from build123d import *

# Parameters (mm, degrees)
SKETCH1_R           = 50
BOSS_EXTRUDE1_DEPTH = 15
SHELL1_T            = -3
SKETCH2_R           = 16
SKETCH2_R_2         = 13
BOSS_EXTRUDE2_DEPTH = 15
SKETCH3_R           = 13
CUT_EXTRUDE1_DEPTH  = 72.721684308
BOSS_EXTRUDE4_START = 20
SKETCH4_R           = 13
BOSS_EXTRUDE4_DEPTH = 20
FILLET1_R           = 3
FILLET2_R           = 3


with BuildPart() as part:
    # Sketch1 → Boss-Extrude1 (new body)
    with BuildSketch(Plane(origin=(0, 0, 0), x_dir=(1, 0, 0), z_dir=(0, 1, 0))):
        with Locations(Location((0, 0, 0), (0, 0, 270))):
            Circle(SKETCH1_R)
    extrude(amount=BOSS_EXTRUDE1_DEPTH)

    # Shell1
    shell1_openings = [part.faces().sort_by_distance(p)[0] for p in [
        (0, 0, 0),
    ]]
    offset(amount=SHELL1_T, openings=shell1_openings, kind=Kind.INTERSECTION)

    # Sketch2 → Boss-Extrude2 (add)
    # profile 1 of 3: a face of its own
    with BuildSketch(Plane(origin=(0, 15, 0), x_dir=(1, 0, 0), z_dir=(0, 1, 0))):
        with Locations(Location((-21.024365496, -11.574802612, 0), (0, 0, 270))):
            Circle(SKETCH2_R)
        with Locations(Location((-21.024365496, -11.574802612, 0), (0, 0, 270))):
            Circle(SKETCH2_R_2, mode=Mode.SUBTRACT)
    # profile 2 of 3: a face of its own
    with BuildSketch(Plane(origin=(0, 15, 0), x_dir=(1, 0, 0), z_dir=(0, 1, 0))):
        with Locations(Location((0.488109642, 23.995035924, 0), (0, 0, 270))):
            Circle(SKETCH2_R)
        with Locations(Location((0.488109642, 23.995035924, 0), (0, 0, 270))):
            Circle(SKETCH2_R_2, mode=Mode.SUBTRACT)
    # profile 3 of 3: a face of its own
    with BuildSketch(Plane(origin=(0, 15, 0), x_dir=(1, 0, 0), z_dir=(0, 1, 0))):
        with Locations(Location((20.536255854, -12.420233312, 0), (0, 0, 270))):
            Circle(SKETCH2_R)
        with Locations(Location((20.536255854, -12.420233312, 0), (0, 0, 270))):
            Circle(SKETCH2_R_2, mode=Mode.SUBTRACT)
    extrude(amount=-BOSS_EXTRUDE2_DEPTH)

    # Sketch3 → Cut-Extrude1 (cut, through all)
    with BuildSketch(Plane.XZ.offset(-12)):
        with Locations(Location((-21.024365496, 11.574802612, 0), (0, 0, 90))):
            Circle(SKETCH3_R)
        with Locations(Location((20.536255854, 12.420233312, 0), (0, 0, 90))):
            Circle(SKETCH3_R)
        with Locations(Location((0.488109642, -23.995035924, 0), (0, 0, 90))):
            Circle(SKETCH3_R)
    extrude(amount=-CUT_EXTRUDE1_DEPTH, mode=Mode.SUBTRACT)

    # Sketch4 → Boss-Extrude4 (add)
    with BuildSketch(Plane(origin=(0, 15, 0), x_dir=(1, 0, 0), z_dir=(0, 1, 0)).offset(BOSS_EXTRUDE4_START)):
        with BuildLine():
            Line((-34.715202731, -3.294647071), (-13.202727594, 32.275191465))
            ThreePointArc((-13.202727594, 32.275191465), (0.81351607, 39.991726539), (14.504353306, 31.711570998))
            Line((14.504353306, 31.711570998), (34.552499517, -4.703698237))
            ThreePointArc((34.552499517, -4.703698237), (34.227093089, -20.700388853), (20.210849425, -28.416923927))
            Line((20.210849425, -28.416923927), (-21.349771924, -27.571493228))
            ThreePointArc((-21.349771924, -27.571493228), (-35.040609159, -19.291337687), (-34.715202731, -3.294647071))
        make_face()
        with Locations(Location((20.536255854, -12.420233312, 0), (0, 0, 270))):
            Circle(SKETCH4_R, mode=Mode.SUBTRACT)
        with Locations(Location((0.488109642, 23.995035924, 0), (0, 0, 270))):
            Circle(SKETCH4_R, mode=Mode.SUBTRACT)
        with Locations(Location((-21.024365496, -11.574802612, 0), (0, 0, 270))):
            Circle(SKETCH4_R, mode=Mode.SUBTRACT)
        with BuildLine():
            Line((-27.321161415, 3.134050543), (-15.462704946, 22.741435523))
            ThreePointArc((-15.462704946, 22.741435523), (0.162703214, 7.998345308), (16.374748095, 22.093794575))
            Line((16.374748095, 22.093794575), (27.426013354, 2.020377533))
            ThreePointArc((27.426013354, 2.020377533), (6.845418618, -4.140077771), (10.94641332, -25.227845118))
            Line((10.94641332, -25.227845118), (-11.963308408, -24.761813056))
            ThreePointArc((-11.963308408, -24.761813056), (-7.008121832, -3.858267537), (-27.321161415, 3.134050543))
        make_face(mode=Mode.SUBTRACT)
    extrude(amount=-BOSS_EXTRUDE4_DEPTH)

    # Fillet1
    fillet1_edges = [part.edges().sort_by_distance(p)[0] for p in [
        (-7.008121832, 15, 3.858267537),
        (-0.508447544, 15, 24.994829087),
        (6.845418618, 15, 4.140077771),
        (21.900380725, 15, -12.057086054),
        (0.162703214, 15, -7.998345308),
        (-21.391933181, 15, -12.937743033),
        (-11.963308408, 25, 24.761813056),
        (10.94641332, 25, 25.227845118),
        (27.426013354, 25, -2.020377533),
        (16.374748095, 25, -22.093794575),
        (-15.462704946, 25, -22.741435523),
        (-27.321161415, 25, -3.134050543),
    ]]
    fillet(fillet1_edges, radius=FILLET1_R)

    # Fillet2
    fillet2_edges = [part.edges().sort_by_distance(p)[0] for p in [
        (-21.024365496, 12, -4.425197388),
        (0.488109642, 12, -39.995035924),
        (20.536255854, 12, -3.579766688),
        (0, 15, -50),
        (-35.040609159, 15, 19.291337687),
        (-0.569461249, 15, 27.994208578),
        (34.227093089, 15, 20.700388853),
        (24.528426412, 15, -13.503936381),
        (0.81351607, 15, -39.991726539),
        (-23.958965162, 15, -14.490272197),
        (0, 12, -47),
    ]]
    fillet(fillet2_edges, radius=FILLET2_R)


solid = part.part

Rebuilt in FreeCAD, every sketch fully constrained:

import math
import FreeCAD as App
import Part
import Sketcher
from FreeCAD import Vector
Q = App.Units.Quantity


def edges_at(feature, points):
    """Names of the edges that pass closest to the given points."""
    edges = feature.Shape.Edges
    near = lambda p: min(range(len(edges)), key=lambda i: edges[i].distToShape(Part.Vertex(*p))[0])
    return sorted({f"Edge{near(p) + 1}" for p in points})


def faces_at(feature, points):
    """Names of the faces that lie closest to the given points."""
    faces = feature.Shape.Faces
    near = lambda p: min(range(len(faces)), key=lambda i: faces[i].distToShape(Part.Vertex(*p))[0])
    return sorted({f"Face{near(p) + 1}" for p in points})

doc = App.newDocument("Part")
params = doc.addObject("Spreadsheet::Sheet", "Params")
for row, (alias, value) in enumerate([
    ("sketch1_diameter", "100 mm"),
    ("pad1_length", "15 mm"),
    ("thickness_wall", "3 mm"),
    ("sketch2_diameter", "32 mm"),
    ("sketch2_diameter2", "26 mm"),
    ("pad2_length", "15 mm"),
    ("sketch3_diameter", "26 mm"),
    ("sketch4_diameter", "26 mm"),
    ("sketch4_radius", "16 mm"),
    ("pad3_length", "20 mm"),
    ("fillet_radius", "3 mm"),
    ("fillet2_radius", "3 mm"),
], start=1):
    params.set(f"A{row}", alias)
    params.set(f"B{row}", "=" + value)
    params.setAlias(f"B{row}", alias)

body = doc.addObject("PartDesign::Body", "Body")

# Sketch on XZ plane
sketch1 = body.newObject("Sketcher::SketchObject", "Sketch")
sketch1.AttachmentSupport = (doc.getObject("XZ_Plane"), [""])
sketch1.MapMode = "FlatFace"
sketch1.addGeometry(Part.Circle(Vector(0, 0, 0), Vector(0, 0, 1), 50), False)
sketch1.addConstraint(Sketcher.Constraint("Coincident", 0, 3, -1, 1))
sketch1.addConstraint(Sketcher.Constraint("Diameter", 0, Q("100 mm")))
sketch1.setExpression("Constraints[1]", "Params.sketch1_diameter")
pad1 = body.newObject("PartDesign::Pad", "Pad")
pad1.Profile = sketch1
pad1.setExpression("Length", "Params.pad1_length")
pad1.Reversed = True
doc.recompute()

thickness = body.newObject("PartDesign::Thickness", "Thickness")
thickness.Base = (pad1, faces_at(pad1, [(0, 0, 0)]))
thickness.setExpression("Value", "Params.thickness_wall")
thickness.Reversed = True
thickness.Join = "Intersection"

# Sketch on XZ plane
sketch2 = body.newObject("Sketcher::SketchObject", "Sketch001")
sketch2.AttachmentSupport = (doc.getObject("XZ_Plane"), [""])
sketch2.MapMode = "FlatFace"
sketch2.AttachmentOffset = App.Placement(Vector(0, 0, -15), App.Rotation())
sketch2.addGeometry(Part.Circle(Vector(-21.024365, 11.574803, 0), Vector(0, 0, 1), 16), False)
sketch2.addGeometry(Part.Circle(Vector(-21.024365, 11.574803, 0), Vector(0, 0, 1), 13), False)
sketch2.addGeometry(Part.Circle(Vector(0.48811, -23.995036, 0), Vector(0, 0, 1), 16), False)
sketch2.addGeometry(Part.Circle(Vector(0.48811, -23.995036, 0), Vector(0, 0, 1), 13), False)
sketch2.addGeometry(Part.Circle(Vector(20.536256, 12.420233, 0), Vector(0, 0, 1), 16), False)
sketch2.addGeometry(Part.Circle(Vector(20.536256, 12.420233, 0), Vector(0, 0, 1), 13), False)
sketch2.addConstraint(Sketcher.Constraint("Coincident", 1, 3, 0, 3))
sketch2.addConstraint(Sketcher.Constraint("Coincident", 3, 3, 2, 3))
sketch2.addConstraint(Sketcher.Constraint("Coincident", 5, 3, 4, 3))
sketch2.addConstraint(Sketcher.Constraint("Equal", 0, 2))
sketch2.addConstraint(Sketcher.Constraint("Equal", 1, 3))
sketch2.addConstraint(Sketcher.Constraint("Equal", 2, 4))
sketch2.addConstraint(Sketcher.Constraint("Equal", 3, 5))
sketch2.addConstraint(Sketcher.Constraint("Diameter", 0, Q("32 mm")))
sketch2.addConstraint(Sketcher.Constraint("Diameter", 1, Q("26 mm")))
sketch2.addConstraint(Sketcher.Constraint("DistanceX", -1, 1, 2, 3, Q("0.48811 mm")))
sketch2.addConstraint(Sketcher.Constraint("DistanceY", 2, 3, 0, 3, Q("35.569839 mm")))
sketch2.addConstraint(Sketcher.Constraint("DistanceX", 0, 3, 4, 3, Q("41.560621 mm")))
sketch2.addConstraint(Sketcher.Constraint("DistanceY", 0, 3, 4, 3, Q("0.845431 mm")))
sketch2.addConstraint(Sketcher.Constraint("DistanceX", 0, 3, -1, 1, Q("21.024365 mm")))
sketch2.addConstraint(Sketcher.Constraint("DistanceY", -1, 1, 0, 3, Q("11.574803 mm")))
sketch2.setExpression("Constraints[7]", "Params.sketch2_diameter")
sketch2.setExpression("Constraints[8]", "Params.sketch2_diameter2")
pad2 = body.newObject("PartDesign::Pad", "Pad001")
pad2.Profile = sketch2
pad2.setExpression("Length", "Params.pad2_length")

# Sketch on XZ plane
sketch3 = body.newObject("Sketcher::SketchObject", "Sketch002")
sketch3.AttachmentSupport = (doc.getObject("XZ_Plane"), [""])
sketch3.MapMode = "FlatFace"
sketch3.AttachmentOffset = App.Placement(Vector(0, 0, -12), App.Rotation())
sketch3.addGeometry(Part.Circle(Vector(-21.024365, 11.574803, 0), Vector(0, 0, 1), 13), False)
sketch3.addGeometry(Part.Circle(Vector(20.536256, 12.420233, 0), Vector(0, 0, 1), 13), False)
sketch3.addGeometry(Part.Circle(Vector(0.48811, -23.995036, 0), Vector(0, 0, 1), 13), False)
sketch3.addConstraint(Sketcher.Constraint("Equal", 0, 1))
sketch3.addConstraint(Sketcher.Constraint("Equal", 1, 2))
sketch3.addConstraint(Sketcher.Constraint("Diameter", 0, Q("26 mm")))
sketch3.addConstraint(Sketcher.Constraint("DistanceX", -1, 1, 2, 3, Q("0.48811 mm")))
sketch3.addConstraint(Sketcher.Constraint("DistanceX", 0, 3, 1, 3, Q("41.560621 mm")))
sketch3.addConstraint(Sketcher.Constraint("DistanceY", 0, 3, 1, 3, Q("0.845431 mm")))
sketch3.addConstraint(Sketcher.Constraint("DistanceY", 2, 3, 0, 3, Q("35.569839 mm")))
sketch3.addConstraint(Sketcher.Constraint("DistanceX", 0, 3, -1, 1, Q("21.024365 mm")))
sketch3.addConstraint(Sketcher.Constraint("DistanceY", -1, 1, 0, 3, Q("11.574803 mm")))
sketch3.setExpression("Constraints[2]", "Params.sketch3_diameter")
pocket1 = body.newObject("PartDesign::Pocket", "Pocket")
pocket1.Profile = sketch3
pocket1.Type = "ThroughAll"

# Sketch on XZ plane
sketch4 = body.newObject("Sketcher::SketchObject", "Sketch003")
sketch4.AttachmentSupport = (doc.getObject("XZ_Plane"), [""])
sketch4.MapMode = "FlatFace"
sketch4.AttachmentOffset = App.Placement(Vector(0, 0, -35), App.Rotation())
sketch4.addGeometry(Part.LineSegment(Vector(-13.202728, -32.275191, 0), Vector(-34.715203, 3.294647, 0)), False)
sketch4.addGeometry(Part.ArcOfCircle(Part.Circle(Vector(-21.024365, 11.574803, 0), Vector(0, 0, 1), 16), math.radians(91.165356), math.radians(211.165356)), False)
sketch4.addGeometry(Part.LineSegment(Vector(-21.349772, 27.571493, 0), Vector(20.210849, 28.416924, 0)), False)
sketch4.addGeometry(Part.ArcOfCircle(Part.Circle(Vector(20.536256, 12.420233, 0), Vector(0, 0, 1), 16), math.radians(-28.834644), math.radians(91.165356)), False)
sketch4.addGeometry(Part.LineSegment(Vector(34.5525, 4.703698, 0), Vector(14.504353, -31.711571, 0)), False)
sketch4.addGeometry(Part.ArcOfCircle(Part.Circle(Vector(0.48811, -23.995036, 0), Vector(0, 0, 1), 16), math.radians(-148.834644), math.radians(-28.834644)), False)
sketch4.addGeometry(Part.Circle(Vector(20.536256, 12.420233, 0), Vector(0, 0, 1), 13), False)
sketch4.addGeometry(Part.LineSegment(Vector(-27.321161, -3.134051, 0), Vector(-15.462705, -22.741436, 0)), False)
sketch4.addGeometry(Part.ArcOfCircle(Part.Circle(Vector(0.48811, -23.995036, 0), Vector(0, 0, 1), 16), math.radians(6.824444), math.radians(175.506269)), False)
sketch4.addGeometry(Part.LineSegment(Vector(16.374748, -22.093795, 0), Vector(27.426013, -2.020378, 0)), False)
sketch4.addGeometry(Part.ArcOfCircle(Part.Circle(Vector(20.536256, 12.420233, 0), Vector(0, 0, 1), 16), math.radians(126.824444), math.radians(295.506269)), False)
sketch4.addGeometry(Part.LineSegment(Vector(10.946413, 25.227845, 0), Vector(-11.963308, 24.761813, 0)), False)
sketch4.addGeometry(Part.ArcOfCircle(Part.Circle(Vector(-21.024365, 11.574803, 0), Vector(0, 0, 1), 16), math.radians(-113.175556), math.radians(55.506269)), False)
sketch4.addGeometry(Part.Circle(Vector(-21.024365, 11.574803, 0), Vector(0, 0, 1), 13), False)
sketch4.addGeometry(Part.Circle(Vector(0.48811, -23.995036, 0), Vector(0, 0, 1), 13), False)
sketch4.addConstraint(Sketcher.Constraint("Tangent", 0, 2, 1, 2))
sketch4.addConstraint(Sketcher.Constraint("Tangent", 1, 1, 2, 1))
sketch4.addConstraint(Sketcher.Constraint("Tangent", 2, 2, 3, 2))
sketch4.addConstraint(Sketcher.Constraint("Tangent", 3, 1, 4, 1))
sketch4.addConstraint(Sketcher.Constraint("Tangent", 4, 2, 5, 2))
sketch4.addConstraint(Sketcher.Constraint("Tangent", 5, 1, 0, 1))
sketch4.addConstraint(Sketcher.Constraint("Coincident", 7, 2, 8, 2))
sketch4.addConstraint(Sketcher.Constraint("Coincident", 8, 1, 9, 1))
sketch4.addConstraint(Sketcher.Constraint("Coincident", 9, 2, 10, 2))
sketch4.addConstraint(Sketcher.Constraint("Coincident", 10, 1, 11, 1))
sketch4.addConstraint(Sketcher.Constraint("Coincident", 11, 2, 12, 2))
sketch4.addConstraint(Sketcher.Constraint("Coincident", 12, 1, 7, 1))
sketch4.addConstraint(Sketcher.Constraint("Coincident", 6, 3, 3, 3))
sketch4.addConstraint(Sketcher.Constraint("Coincident", 8, 3, 5, 3))
sketch4.addConstraint(Sketcher.Constraint("Coincident", 10, 3, 3, 3))
sketch4.addConstraint(Sketcher.Constraint("Coincident", 12, 3, 1, 3))
sketch4.addConstraint(Sketcher.Constraint("Coincident", 13, 3, 1, 3))
sketch4.addConstraint(Sketcher.Constraint("Coincident", 14, 3, 5, 3))
sketch4.addConstraint(Sketcher.Constraint("Equal", 1, 3))
sketch4.addConstraint(Sketcher.Constraint("Equal", 3, 5))
sketch4.addConstraint(Sketcher.Constraint("Equal", 5, 8))
sketch4.addConstraint(Sketcher.Constraint("Equal", 8, 10))
sketch4.addConstraint(Sketcher.Constraint("Equal", 10, 12))
sketch4.addConstraint(Sketcher.Constraint("Equal", 6, 13))
sketch4.addConstraint(Sketcher.Constraint("Equal", 13, 14))
sketch4.addConstraint(Sketcher.Constraint("Parallel", 0, 7))
sketch4.addConstraint(Sketcher.Constraint("Parallel", 4, 9))
sketch4.addConstraint(Sketcher.Constraint("Parallel", 2, 11))
sketch4.addConstraint(Sketcher.Constraint("Equal", 0, 2))
sketch4.addConstraint(Sketcher.Constraint("Equal", 2, 4))
sketch4.addConstraint(Sketcher.Constraint("Equal", 7, 9))
sketch4.addConstraint(Sketcher.Constraint("Equal", 9, 11))
sketch4.addConstraint(Sketcher.Constraint("Diameter", 6, Q("26 mm")))
sketch4.addConstraint(Sketcher.Constraint("Radius", 1, Q("16 mm")))
sketch4.addConstraint(Sketcher.Constraint("DistanceX", -1, 1, 3, 1, Q("34.5525 mm")))
sketch4.addConstraint(Sketcher.Constraint("DistanceY", -1, 1, 3, 1, Q("4.703698 mm")))
sketch4.addConstraint(Sketcher.Constraint("DistanceY", 5, 3, 7, 2, Q("1.2536 mm")))
sketch4.addConstraint(Sketcher.Constraint("Distance", 0, Q("41.569219 mm")))
sketch4.addConstraint(Sketcher.Constraint("Distance", 7, Q("22.914461 mm")))
sketch4.setExpression("Constraints[32]", "Params.sketch4_diameter")
sketch4.setExpression("Constraints[33]", "Params.sketch4_radius")
pad3 = body.newObject("PartDesign::Pad", "Pad002")
pad3.Profile = sketch4
pad3.setExpression("Length", "Params.pad3_length")
doc.recompute()

fillet = body.newObject("PartDesign::Fillet", "Fillet")
fillet.Base = (pad3, edges_at(pad3, [
    (-7.008, 15, 3.858),
    (-0.508, 15, 24.995),
    (6.845, 15, 4.14),
    (21.9, 15, -12.057),
    (0.163, 15, -7.998),
    (-21.392, 15, -12.938),
    (-11.963, 25, 24.762),
    (10.946, 25, 25.228),
    (27.426, 25, -2.02),
    (16.375, 25, -22.094),
    (-15.463, 25, -22.741),
    (-27.321, 25, -3.134),
]))
fillet.setExpression("Radius", "Params.fillet_radius")
doc.recompute()

fillet2 = body.newObject("PartDesign::Fillet", "Fillet001")
fillet2.Base = (fillet, edges_at(fillet, [
    (-21.024, 12, -4.425),
    (0.488, 12, -39.995),
    (20.536, 12, -3.58),
    (0, 15, -50),
    (-35.041, 15, 19.291),
    (-0.569, 15, 27.994),
    (34.227, 15, 20.7),
    (24.528, 15, -13.504),
    (0.814, 15, -39.992),
    (-23.959, 15, -14.49),
    (0, 12, -47),
]))
fillet2.setExpression("Radius", "Params.fillet2_radius")

doc.recompute()
